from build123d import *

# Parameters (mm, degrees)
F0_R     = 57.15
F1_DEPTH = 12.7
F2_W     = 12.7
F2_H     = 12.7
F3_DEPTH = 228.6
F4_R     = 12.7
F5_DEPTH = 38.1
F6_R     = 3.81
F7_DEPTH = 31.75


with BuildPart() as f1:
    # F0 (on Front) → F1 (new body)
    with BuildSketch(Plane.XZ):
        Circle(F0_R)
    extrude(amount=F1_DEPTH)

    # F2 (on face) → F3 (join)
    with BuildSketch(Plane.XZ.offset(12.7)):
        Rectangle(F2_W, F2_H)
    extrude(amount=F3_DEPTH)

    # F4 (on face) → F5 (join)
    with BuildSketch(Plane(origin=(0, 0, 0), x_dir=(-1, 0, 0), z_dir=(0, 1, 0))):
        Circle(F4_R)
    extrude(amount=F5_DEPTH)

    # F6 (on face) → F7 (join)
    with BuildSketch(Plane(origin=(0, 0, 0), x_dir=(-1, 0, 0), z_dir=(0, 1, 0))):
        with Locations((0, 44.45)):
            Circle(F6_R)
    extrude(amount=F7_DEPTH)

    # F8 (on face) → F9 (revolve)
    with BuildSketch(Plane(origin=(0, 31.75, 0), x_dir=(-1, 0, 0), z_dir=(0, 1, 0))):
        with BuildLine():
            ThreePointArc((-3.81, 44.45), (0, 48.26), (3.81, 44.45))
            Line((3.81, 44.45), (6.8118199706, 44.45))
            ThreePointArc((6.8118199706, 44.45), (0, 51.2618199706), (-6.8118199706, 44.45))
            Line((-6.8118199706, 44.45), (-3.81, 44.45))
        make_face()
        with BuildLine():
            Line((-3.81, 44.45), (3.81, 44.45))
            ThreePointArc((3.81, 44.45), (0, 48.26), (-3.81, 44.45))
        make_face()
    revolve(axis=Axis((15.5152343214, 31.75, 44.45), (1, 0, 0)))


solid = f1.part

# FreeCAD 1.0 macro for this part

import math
import FreeCAD as App
import Part
import Sketcher
from FreeCAD import Vector
Q = App.Units.Quantity

doc = App.newDocument("Part")
body = doc.addObject("PartDesign::Body", "Body")

# Sketch on XZ plane
sketch1 = body.newObject("Sketcher::SketchObject", "Sketch")
sketch1.AttachmentSupport = (doc.getObject("XZ_Plane"), [""])
sketch1.MapMode = "FlatFace"
sketch1.addGeometry(Part.Circle(Vector(0, 0, 0), Vector(0, 0, 1), 57), False)
sketch1.addConstraint(Sketcher.Constraint("Coincident", 0, 3, -1, 1))
sketch1.addConstraint(Sketcher.Constraint("Diameter", 0, Q("4.5 in")))
pad1 = body.newObject("PartDesign::Pad", "Pad")
pad1.Profile = sketch1
pad1.Length = Q("0.5 in")

# Sketch on XZ plane
sketch2 = body.newObject("Sketcher::SketchObject", "Sketch001")
sketch2.AttachmentSupport = (doc.getObject("XZ_Plane"), [""])
sketch2.MapMode = "FlatFace"
sketch2.AttachmentOffset = App.Placement(Vector(0, 0, 0.5 * 25.4), App.Rotation())
sketch2.addGeometry(Part.LineSegment(Vector(-6, 6, 0), Vector(-6, -6, 0)), False)
sketch2.addGeometry(Part.LineSegment(Vector(-6, -6, 0), Vector(6, -6, 0)), False)
sketch2.addGeometry(Part.LineSegment(Vector(6, -6, 0), Vector(6, 6, 0)), False)
sketch2.addGeometry(Part.LineSegment(Vector(6, 6, 0), Vector(-6, 6, 0)), False)
sketch2.addConstraint(Sketcher.Constraint("Coincident", 0, 2, 1, 1))
sketch2.addConstraint(Sketcher.Constraint("Coincident", 1, 2, 2, 1))
sketch2.addConstraint(Sketcher.Constraint("Coincident", 2, 2, 3, 1))
sketch2.addConstraint(Sketcher.Constraint("Coincident", 3, 2, 0, 1))
sketch2.addConstraint(Sketcher.Constraint("Vertical", 0))
sketch2.addConstraint(Sketcher.Constraint("Horizontal", 1))
sketch2.addConstraint(Sketcher.Constraint("Vertical", 2))
sketch2.addConstraint(Sketcher.Constraint("Horizontal", 3))
sketch2.addConstraint(Sketcher.Constraint("Symmetric", 0, 2, 2, 2, -1, 1))
sketch2.addConstraint(Sketcher.Constraint("Equal", 3, 0))
sketch2.addConstraint(Sketcher.Constraint("DistanceX", 1, 1, 1, 2, Q("0.5 in")))
pad2 = body.newObject("PartDesign::Pad", "Pad001")
pad2.Profile = sketch2
pad2.Length = Q("9 in")

# Sketch on XZ plane
sketch3 = body.newObject("Sketcher::SketchObject", "Sketch002")
sketch3.AttachmentSupport = (doc.getObject("XZ_Plane"), [""])
sketch3.MapMode = "FlatFace"
sketch3.addGeometry(Part.Circle(Vector(0, 0, 0), Vector(0, 0, 1), 13), False)
sketch3.addConstraint(Sketcher.Constraint("Coincident", 0, 3, -1, 1))
sketch3.addConstraint(Sketcher.Constraint("Diameter", 0, Q("1 in")))
pad3 = body.newObject("PartDesign::Pad", "Pad002")
pad3.Profile = sketch3
pad3.Length = Q("1.5 in")
pad3.Reversed = True

# Sketch on XZ plane
sketch4 = body.newObject("Sketcher::SketchObject", "Sketch003")
sketch4.AttachmentSupport = (doc.getObject("XZ_Plane"), [""])
sketch4.MapMode = "FlatFace"
sketch4.addGeometry(Part.Circle(Vector(0, 44.5, 0), Vector(0, 0, 1), 3.8), False)
sketch4.addConstraint(Sketcher.Constraint("PointOnObject", 0, 3, -2))
sketch4.addConstraint(Sketcher.Constraint("Diameter", 0, Q("0.3 in")))
sketch4.addConstraint(Sketcher.Constraint("DistanceY", -1, 1, 0, 3, Q("1.75 in")))
pad4 = body.newObject("PartDesign::Pad", "Pad003")
pad4.Profile = sketch4
pad4.Length = Q("1.25 in")
pad4.Reversed = True

# Sketch on XZ plane
sketch5 = body.newObject("Sketcher::SketchObject", "Sketch004")
sketch5.AttachmentSupport = (doc.getObject("XZ_Plane"), [""])
sketch5.MapMode = "FlatFace"
sketch5.AttachmentOffset = App.Placement(Vector(0, 0, -1.25 * 25.4), App.Rotation())
sketch5.addGeometry(Part.ArcOfCircle(Part.Circle(Vector(0, 44, 0), Vector(0, 0, 1), 7), math.radians(0), math.radians(180)), False)
sketch5.addGeometry(Part.LineSegment(Vector(7, 44, 0), Vector(-7, 44, 0)), False)
sketch5.addGeometry(Part.LineSegment(Vector(-7, 44, 0), Vector(7, 44, 0)), True)  # axis
sketch5.addConstraint(Sketcher.Constraint("Coincident", 0, 1, 1, 1))
sketch5.addConstraint(Sketcher.Constraint("Coincident", 1, 2, 0, 2))
sketch5.addConstraint(Sketcher.Constraint("Horizontal", 1))
sketch5.addConstraint(Sketcher.Constraint("Horizontal", 2))
sketch5.addConstraint(Sketcher.Constraint("Coincident", 2, 1, 1, 2))
sketch5.addConstraint(Sketcher.Constraint("PointOnObject", 0, 3, -2))
sketch5.addConstraint(Sketcher.Constraint("Equal", 1, 2))
sketch5.addConstraint(Sketcher.Constraint("DistanceY", -1, 1, 0, 3, Q("1.75 in")))
sketch5.addConstraint(Sketcher.Constraint("DistanceY", -1, 1, 0, 1, Q("1.75 in")))
sketch5.addConstraint(Sketcher.Constraint("Radius", 0, 6.81182))
revolution = body.newObject("PartDesign::Revolution", "Revolution")
revolution.Profile = sketch5
revolution.ReferenceAxis = (sketch5, ["Axis0"])
revolution.Angle = 360

doc.recompute()
